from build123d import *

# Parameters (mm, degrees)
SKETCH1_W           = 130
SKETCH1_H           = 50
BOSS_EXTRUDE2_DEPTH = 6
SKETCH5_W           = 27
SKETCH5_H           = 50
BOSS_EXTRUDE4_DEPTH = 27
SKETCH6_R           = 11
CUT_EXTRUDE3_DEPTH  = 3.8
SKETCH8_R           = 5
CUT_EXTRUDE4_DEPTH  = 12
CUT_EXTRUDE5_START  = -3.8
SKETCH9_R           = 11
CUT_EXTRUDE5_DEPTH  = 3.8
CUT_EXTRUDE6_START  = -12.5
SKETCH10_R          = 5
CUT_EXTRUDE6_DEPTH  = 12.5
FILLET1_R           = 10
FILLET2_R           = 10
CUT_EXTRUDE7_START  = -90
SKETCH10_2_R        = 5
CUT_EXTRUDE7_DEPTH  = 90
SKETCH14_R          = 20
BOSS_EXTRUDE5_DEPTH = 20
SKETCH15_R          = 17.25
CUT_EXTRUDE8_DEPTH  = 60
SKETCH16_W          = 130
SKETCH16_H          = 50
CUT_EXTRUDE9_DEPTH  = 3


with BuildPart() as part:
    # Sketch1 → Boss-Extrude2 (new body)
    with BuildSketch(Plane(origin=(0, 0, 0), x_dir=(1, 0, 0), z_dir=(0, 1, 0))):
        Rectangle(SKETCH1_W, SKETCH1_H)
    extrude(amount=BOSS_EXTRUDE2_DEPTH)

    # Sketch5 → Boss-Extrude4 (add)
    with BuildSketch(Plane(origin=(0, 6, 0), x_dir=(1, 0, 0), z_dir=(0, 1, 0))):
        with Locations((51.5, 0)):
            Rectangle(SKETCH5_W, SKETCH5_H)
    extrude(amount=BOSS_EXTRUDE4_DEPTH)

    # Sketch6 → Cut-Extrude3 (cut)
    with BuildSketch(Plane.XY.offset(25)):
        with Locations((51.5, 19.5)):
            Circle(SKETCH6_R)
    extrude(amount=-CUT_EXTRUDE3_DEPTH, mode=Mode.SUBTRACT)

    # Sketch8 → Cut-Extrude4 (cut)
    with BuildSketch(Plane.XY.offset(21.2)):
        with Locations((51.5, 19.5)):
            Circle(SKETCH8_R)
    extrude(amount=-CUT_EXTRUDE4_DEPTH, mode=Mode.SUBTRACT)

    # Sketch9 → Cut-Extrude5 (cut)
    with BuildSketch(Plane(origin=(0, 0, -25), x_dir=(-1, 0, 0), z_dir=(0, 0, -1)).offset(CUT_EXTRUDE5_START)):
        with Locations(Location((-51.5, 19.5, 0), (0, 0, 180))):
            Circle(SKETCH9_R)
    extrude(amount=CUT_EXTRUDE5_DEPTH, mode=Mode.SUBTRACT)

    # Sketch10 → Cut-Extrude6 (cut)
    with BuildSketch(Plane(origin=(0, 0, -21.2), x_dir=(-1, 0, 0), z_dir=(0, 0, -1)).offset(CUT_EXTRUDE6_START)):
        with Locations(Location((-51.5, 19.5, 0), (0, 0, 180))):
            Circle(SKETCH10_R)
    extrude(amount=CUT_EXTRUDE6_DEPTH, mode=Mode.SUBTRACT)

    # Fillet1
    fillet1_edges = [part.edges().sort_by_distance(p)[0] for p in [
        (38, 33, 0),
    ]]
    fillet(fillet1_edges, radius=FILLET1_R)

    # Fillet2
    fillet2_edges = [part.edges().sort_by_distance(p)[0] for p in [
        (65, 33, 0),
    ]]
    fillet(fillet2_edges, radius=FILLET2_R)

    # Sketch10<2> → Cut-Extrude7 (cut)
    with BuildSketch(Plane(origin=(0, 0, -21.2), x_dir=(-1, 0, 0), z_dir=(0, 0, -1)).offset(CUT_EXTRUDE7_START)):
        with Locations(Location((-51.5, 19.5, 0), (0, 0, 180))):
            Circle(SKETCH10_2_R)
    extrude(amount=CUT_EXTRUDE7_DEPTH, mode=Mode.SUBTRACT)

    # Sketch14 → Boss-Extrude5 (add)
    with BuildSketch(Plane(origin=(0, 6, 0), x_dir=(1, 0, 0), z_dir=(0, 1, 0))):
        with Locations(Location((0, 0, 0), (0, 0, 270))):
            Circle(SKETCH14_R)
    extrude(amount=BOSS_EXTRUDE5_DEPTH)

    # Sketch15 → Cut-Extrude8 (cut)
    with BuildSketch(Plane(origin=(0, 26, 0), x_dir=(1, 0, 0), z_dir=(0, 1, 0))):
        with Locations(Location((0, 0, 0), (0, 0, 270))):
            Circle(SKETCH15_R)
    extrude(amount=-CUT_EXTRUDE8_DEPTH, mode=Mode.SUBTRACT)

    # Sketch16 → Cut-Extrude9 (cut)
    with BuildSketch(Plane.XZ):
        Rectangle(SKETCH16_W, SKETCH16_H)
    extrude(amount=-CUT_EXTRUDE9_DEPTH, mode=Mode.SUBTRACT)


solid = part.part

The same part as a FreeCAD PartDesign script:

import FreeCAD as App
import Part
import Sketcher
from FreeCAD import Vector


def edges_at(feature, points):
    """Names of the edges that pass closest to the given points."""
    edges = feature.Shape.Edges
    near = lambda p: min(range(len(edges)), key=lambda i: edges[i].distToShape(Part.Vertex(*p))[0])
    return sorted({f"Edge{near(p) + 1}" for p in points})


def add_polygon(sketch, points):
    """Adds a closed chain of lines whose ends are joined by coincident constraints."""
    first, n = sketch.GeometryCount, len(points)
    for a, b in zip(points, points[1:] + points[:1]):
        sketch.addGeometry(Part.LineSegment(App.Vector(*a, 0), App.Vector(*b, 0)), False)
    for i in range(n):
        sketch.addConstraint(Sketcher.Constraint("Coincident", first + i, 2, first + (i + 1) % n, 1))

doc = App.newDocument("Part")
body = doc.addObject("PartDesign::Body", "Body")

# Sketch on XZ plane
sketch1 = body.newObject("Sketcher::SketchObject", "Sketch")
sketch1.AttachmentSupport = (doc.getObject("XZ_Plane"), [""])
sketch1.MapMode = "FlatFace"
add_polygon(sketch1, [(-65, -25), (-65, 25), (65, 25), (65, -25)])  # lines 0-3
sketch1.addConstraint(Sketcher.Constraint("Vertical", 0))
sketch1.addConstraint(Sketcher.Constraint("Horizontal", 1))
sketch1.addConstraint(Sketcher.Constraint("Vertical", 2))
sketch1.addConstraint(Sketcher.Constraint("Horizontal", 3))
sketch1.addConstraint(Sketcher.Constraint("Symmetric", 0, 2, 2, 2, -1, 1))
sketch1.addConstraint(Sketcher.Constraint("DistanceX", 1, 1, 1, 2, 130.0))
sketch1.addConstraint(Sketcher.Constraint("DistanceY", 0, 1, 0, 2, 50.0))
pad1 = body.newObject("PartDesign::Pad", "Pad")
pad1.Profile = sketch1
pad1.Length = 6
pad1.Reversed = True

# Sketch on XZ plane
sketch2 = body.newObject("Sketcher::SketchObject", "Sketch001")
sketch2.AttachmentSupport = (doc.getObject("XZ_Plane"), [""])
sketch2.MapMode = "FlatFace"
sketch2.AttachmentOffset = App.Placement(Vector(0, 0, -6), App.Rotation())
add_polygon(sketch2, [(38, -25), (38, 25), (65, 25), (65, -25)])  # lines 0-3
sketch2.addConstraint(Sketcher.Constraint("Vertical", 0))
sketch2.addConstraint(Sketcher.Constraint("Horizontal", 1))
sketch2.addConstraint(Sketcher.Constraint("Vertical", 2))
sketch2.addConstraint(Sketcher.Constraint("Horizontal", 3))
sketch2.addConstraint(Sketcher.Constraint("DistanceX", 1, 1, 1, 2, 27.0))
sketch2.addConstraint(Sketcher.Constraint("DistanceY", 0, 1, 0, 2, 50.0))
sketch2.addConstraint(Sketcher.Constraint("DistanceX", -1, 1, 0, 2, 38.0))
sketch2.addConstraint(Sketcher.Constraint("DistanceY", -1, 1, 0, 2, 25.0))
pad2 = body.newObject("PartDesign::Pad", "Pad001")
pad2.Profile = sketch2
pad2.Length = 27
pad2.Reversed = True

# Sketch on XY plane
sketch3 = body.newObject("Sketcher::SketchObject", "Sketch002")
sketch3.AttachmentSupport = (doc.getObject("XY_Plane"), [""])
sketch3.MapMode = "FlatFace"
sketch3.AttachmentOffset = App.Placement(Vector(0, 0, 25), App.Rotation())
sketch3.addGeometry(Part.Circle(Vector(52, 20, 0), Vector(0, 0, 1), 11), False)
sketch3.addConstraint(Sketcher.Constraint("Diameter", 0, 22.0))
sketch3.addConstraint(Sketcher.Constraint("DistanceX", -1, 1, 0, 3, 51.5))
sketch3.addConstraint(Sketcher.Constraint("DistanceY", -1, 1, 0, 3, 19.5))
pocket1 = body.newObject("PartDesign::Pocket", "Pocket")
pocket1.Profile = sketch3
pocket1.Length = 3.8

# Sketch on XY plane
sketch4 = body.newObject("Sketcher::SketchObject", "Sketch003")
sketch4.AttachmentSupport = (doc.getObject("XY_Plane"), [""])
sketch4.MapMode = "FlatFace"
sketch4.AttachmentOffset = App.Placement(Vector(0, 0, 21.2), App.Rotation())
sketch4.addGeometry(Part.Circle(Vector(52, 20, 0), Vector(0, 0, 1), 5), False)
sketch4.addConstraint(Sketcher.Constraint("Diameter", 0, 10.0))
sketch4.addConstraint(Sketcher.Constraint("DistanceX", -1, 1, 0, 3, 51.5))
sketch4.addConstraint(Sketcher.Constraint("DistanceY", -1, 1, 0, 3, 19.5))
pocket2 = body.newObject("PartDesign::Pocket", "Pocket001")
pocket2.Profile = sketch4
pocket2.Length = 12

# Sketch on XY plane
sketch5 = body.newObject("Sketcher::SketchObject", "Sketch004")
sketch5.AttachmentSupport = (doc.getObject("XY_Plane"), [""])
sketch5.MapMode = "FlatFace"
sketch5.AttachmentOffset = App.Placement(Vector(0, 0, -21.2), App.Rotation())
sketch5.addGeometry(Part.Circle(Vector(52, 20, 0), Vector(0, 0, 1), 11), False)
sketch5.addConstraint(Sketcher.Constraint("Diameter", 0, 22.0))
sketch5.addConstraint(Sketcher.Constraint("DistanceX", -1, 1, 0, 3, 51.5))
sketch5.addConstraint(Sketcher.Constraint("DistanceY", -1, 1, 0, 3, 19.5))
pocket3 = body.newObject("PartDesign::Pocket", "Pocket002")
pocket3.Profile = sketch5
pocket3.Length = 3.8

# Sketch on XY plane
sketch6 = body.newObject("Sketcher::SketchObject", "Sketch005")
sketch6.AttachmentSupport = (doc.getObject("XY_Plane"), [""])
sketch6.MapMode = "FlatFace"
sketch6.AttachmentOffset = App.Placement(Vector(0, 0, -8.7), App.Rotation())
sketch6.addGeometry(Part.Circle(Vector(52, 20, 0), Vector(0, 0, 1), 5), False)
sketch6.addConstraint(Sketcher.Constraint("Diameter", 0, 10.0))
sketch6.addConstraint(Sketcher.Constraint("DistanceX", -1, 1, 0, 3, 51.5))
sketch6.addConstraint(Sketcher.Constraint("DistanceY", -1, 1, 0, 3, 19.5))
pocket4 = body.newObject("PartDesign::Pocket", "Pocket003")
pocket4.Profile = sketch6
pocket4.Length = 12.5
doc.recompute()

fillet = body.newObject("PartDesign::Fillet", "Fillet")
fillet.Base = (pocket4, edges_at(pocket4, [(38, 33, 0)]))
fillet.Radius = 10
doc.recompute()

fillet2 = body.newObject("PartDesign::Fillet", "Fillet001")
fillet2.Base = (fillet, edges_at(fillet, [(65, 33, 0)]))
fillet2.Radius = 10

# Sketch on XY plane
sketch7 = body.newObject("Sketcher::SketchObject", "Sketch006")
sketch7.AttachmentSupport = (doc.getObject("XY_Plane"), [""])
sketch7.MapMode = "FlatFace"
sketch7.AttachmentOffset = App.Placement(Vector(0, 0, 68.8), App.Rotation())
sketch7.addGeometry(Part.Circle(Vector(52, 20, 0), Vector(0, 0, 1), 5), False)
sketch7.addConstraint(Sketcher.Constraint("Diameter", 0, 10.0))
sketch7.addConstraint(Sketcher.Constraint("DistanceX", -1, 1, 0, 3, 51.5))
sketch7.addConstraint(Sketcher.Constraint("DistanceY", -1, 1, 0, 3, 19.5))
pocket5 = body.newObject("PartDesign::Pocket", "Pocket004")
pocket5.Profile = sketch7
pocket5.Length = 90

# Sketch on XZ plane
sketch8 = body.newObject("Sketcher::SketchObject", "Sketch007")
sketch8.AttachmentSupport = (doc.getObject("XZ_Plane"), [""])
sketch8.MapMode = "FlatFace"
sketch8.AttachmentOffset = App.Placement(Vector(0, 0, -6), App.Rotation())
sketch8.addGeometry(Part.Circle(Vector(0, 0, 0), Vector(0, 0, 1), 20), False)
sketch8.addConstraint(Sketcher.Constraint("Coincident", 0, 3, -1, 1))
sketch8.addConstraint(Sketcher.Constraint("Diameter", 0, 40.0))
pad3 = body.newObject("PartDesign::Pad", "Pad002")
pad3.Profile = sketch8
pad3.Length = 20
pad3.Reversed = True

# Sketch on XZ plane
sketch9 = body.newObject("Sketcher::SketchObject", "Sketch008")
sketch9.AttachmentSupport = (doc.getObject("XZ_Plane"), [""])
sketch9.MapMode = "FlatFace"
sketch9.AttachmentOffset = App.Placement(Vector(0, 0, -26), App.Rotation())
sketch9.addGeometry(Part.Circle(Vector(0, 0, 0), Vector(0, 0, 1), 17), False)
sketch9.addConstraint(Sketcher.Constraint("Coincident", 0, 3, -1, 1))
sketch9.addConstraint(Sketcher.Constraint("Diameter", 0, 34.5))
pocket6 = body.newObject("PartDesign::Pocket", "Pocket005")
pocket6.Profile = sketch9
pocket6.Length = 60
pocket6.Reversed = True

# Sketch on XZ plane
sketch10 = body.newObject("Sketcher::SketchObject", "Sketch009")
sketch10.AttachmentSupport = (doc.getObject("XZ_Plane"), [""])
sketch10.MapMode = "FlatFace"
add_polygon(sketch10, [(-65, 25), (-65, -25), (65, -25), (65, 25)])  # lines 0-3
sketch10.addConstraint(Sketcher.Constraint("Vertical", 0))
sketch10.addConstraint(Sketcher.Constraint("Horizontal", 1))
sketch10.addConstraint(Sketcher.Constraint("Vertical", 2))
sketch10.addConstraint(Sketcher.Constraint("Horizontal", 3))
sketch10.addConstraint(Sketcher.Constraint("Symmetric", 0, 2, 2, 2, -1, 1))
sketch10.addConstraint(Sketcher.Constraint("DistanceX", 1, 1, 1, 2, 130.0))
sketch10.addConstraint(Sketcher.Constraint("DistanceY", 0, 2, 0, 1, 50.0))
pocket7 = body.newObject("PartDesign::Pocket", "Pocket006")
pocket7.Profile = sketch10
pocket7.Length = 3

doc.recompute()
